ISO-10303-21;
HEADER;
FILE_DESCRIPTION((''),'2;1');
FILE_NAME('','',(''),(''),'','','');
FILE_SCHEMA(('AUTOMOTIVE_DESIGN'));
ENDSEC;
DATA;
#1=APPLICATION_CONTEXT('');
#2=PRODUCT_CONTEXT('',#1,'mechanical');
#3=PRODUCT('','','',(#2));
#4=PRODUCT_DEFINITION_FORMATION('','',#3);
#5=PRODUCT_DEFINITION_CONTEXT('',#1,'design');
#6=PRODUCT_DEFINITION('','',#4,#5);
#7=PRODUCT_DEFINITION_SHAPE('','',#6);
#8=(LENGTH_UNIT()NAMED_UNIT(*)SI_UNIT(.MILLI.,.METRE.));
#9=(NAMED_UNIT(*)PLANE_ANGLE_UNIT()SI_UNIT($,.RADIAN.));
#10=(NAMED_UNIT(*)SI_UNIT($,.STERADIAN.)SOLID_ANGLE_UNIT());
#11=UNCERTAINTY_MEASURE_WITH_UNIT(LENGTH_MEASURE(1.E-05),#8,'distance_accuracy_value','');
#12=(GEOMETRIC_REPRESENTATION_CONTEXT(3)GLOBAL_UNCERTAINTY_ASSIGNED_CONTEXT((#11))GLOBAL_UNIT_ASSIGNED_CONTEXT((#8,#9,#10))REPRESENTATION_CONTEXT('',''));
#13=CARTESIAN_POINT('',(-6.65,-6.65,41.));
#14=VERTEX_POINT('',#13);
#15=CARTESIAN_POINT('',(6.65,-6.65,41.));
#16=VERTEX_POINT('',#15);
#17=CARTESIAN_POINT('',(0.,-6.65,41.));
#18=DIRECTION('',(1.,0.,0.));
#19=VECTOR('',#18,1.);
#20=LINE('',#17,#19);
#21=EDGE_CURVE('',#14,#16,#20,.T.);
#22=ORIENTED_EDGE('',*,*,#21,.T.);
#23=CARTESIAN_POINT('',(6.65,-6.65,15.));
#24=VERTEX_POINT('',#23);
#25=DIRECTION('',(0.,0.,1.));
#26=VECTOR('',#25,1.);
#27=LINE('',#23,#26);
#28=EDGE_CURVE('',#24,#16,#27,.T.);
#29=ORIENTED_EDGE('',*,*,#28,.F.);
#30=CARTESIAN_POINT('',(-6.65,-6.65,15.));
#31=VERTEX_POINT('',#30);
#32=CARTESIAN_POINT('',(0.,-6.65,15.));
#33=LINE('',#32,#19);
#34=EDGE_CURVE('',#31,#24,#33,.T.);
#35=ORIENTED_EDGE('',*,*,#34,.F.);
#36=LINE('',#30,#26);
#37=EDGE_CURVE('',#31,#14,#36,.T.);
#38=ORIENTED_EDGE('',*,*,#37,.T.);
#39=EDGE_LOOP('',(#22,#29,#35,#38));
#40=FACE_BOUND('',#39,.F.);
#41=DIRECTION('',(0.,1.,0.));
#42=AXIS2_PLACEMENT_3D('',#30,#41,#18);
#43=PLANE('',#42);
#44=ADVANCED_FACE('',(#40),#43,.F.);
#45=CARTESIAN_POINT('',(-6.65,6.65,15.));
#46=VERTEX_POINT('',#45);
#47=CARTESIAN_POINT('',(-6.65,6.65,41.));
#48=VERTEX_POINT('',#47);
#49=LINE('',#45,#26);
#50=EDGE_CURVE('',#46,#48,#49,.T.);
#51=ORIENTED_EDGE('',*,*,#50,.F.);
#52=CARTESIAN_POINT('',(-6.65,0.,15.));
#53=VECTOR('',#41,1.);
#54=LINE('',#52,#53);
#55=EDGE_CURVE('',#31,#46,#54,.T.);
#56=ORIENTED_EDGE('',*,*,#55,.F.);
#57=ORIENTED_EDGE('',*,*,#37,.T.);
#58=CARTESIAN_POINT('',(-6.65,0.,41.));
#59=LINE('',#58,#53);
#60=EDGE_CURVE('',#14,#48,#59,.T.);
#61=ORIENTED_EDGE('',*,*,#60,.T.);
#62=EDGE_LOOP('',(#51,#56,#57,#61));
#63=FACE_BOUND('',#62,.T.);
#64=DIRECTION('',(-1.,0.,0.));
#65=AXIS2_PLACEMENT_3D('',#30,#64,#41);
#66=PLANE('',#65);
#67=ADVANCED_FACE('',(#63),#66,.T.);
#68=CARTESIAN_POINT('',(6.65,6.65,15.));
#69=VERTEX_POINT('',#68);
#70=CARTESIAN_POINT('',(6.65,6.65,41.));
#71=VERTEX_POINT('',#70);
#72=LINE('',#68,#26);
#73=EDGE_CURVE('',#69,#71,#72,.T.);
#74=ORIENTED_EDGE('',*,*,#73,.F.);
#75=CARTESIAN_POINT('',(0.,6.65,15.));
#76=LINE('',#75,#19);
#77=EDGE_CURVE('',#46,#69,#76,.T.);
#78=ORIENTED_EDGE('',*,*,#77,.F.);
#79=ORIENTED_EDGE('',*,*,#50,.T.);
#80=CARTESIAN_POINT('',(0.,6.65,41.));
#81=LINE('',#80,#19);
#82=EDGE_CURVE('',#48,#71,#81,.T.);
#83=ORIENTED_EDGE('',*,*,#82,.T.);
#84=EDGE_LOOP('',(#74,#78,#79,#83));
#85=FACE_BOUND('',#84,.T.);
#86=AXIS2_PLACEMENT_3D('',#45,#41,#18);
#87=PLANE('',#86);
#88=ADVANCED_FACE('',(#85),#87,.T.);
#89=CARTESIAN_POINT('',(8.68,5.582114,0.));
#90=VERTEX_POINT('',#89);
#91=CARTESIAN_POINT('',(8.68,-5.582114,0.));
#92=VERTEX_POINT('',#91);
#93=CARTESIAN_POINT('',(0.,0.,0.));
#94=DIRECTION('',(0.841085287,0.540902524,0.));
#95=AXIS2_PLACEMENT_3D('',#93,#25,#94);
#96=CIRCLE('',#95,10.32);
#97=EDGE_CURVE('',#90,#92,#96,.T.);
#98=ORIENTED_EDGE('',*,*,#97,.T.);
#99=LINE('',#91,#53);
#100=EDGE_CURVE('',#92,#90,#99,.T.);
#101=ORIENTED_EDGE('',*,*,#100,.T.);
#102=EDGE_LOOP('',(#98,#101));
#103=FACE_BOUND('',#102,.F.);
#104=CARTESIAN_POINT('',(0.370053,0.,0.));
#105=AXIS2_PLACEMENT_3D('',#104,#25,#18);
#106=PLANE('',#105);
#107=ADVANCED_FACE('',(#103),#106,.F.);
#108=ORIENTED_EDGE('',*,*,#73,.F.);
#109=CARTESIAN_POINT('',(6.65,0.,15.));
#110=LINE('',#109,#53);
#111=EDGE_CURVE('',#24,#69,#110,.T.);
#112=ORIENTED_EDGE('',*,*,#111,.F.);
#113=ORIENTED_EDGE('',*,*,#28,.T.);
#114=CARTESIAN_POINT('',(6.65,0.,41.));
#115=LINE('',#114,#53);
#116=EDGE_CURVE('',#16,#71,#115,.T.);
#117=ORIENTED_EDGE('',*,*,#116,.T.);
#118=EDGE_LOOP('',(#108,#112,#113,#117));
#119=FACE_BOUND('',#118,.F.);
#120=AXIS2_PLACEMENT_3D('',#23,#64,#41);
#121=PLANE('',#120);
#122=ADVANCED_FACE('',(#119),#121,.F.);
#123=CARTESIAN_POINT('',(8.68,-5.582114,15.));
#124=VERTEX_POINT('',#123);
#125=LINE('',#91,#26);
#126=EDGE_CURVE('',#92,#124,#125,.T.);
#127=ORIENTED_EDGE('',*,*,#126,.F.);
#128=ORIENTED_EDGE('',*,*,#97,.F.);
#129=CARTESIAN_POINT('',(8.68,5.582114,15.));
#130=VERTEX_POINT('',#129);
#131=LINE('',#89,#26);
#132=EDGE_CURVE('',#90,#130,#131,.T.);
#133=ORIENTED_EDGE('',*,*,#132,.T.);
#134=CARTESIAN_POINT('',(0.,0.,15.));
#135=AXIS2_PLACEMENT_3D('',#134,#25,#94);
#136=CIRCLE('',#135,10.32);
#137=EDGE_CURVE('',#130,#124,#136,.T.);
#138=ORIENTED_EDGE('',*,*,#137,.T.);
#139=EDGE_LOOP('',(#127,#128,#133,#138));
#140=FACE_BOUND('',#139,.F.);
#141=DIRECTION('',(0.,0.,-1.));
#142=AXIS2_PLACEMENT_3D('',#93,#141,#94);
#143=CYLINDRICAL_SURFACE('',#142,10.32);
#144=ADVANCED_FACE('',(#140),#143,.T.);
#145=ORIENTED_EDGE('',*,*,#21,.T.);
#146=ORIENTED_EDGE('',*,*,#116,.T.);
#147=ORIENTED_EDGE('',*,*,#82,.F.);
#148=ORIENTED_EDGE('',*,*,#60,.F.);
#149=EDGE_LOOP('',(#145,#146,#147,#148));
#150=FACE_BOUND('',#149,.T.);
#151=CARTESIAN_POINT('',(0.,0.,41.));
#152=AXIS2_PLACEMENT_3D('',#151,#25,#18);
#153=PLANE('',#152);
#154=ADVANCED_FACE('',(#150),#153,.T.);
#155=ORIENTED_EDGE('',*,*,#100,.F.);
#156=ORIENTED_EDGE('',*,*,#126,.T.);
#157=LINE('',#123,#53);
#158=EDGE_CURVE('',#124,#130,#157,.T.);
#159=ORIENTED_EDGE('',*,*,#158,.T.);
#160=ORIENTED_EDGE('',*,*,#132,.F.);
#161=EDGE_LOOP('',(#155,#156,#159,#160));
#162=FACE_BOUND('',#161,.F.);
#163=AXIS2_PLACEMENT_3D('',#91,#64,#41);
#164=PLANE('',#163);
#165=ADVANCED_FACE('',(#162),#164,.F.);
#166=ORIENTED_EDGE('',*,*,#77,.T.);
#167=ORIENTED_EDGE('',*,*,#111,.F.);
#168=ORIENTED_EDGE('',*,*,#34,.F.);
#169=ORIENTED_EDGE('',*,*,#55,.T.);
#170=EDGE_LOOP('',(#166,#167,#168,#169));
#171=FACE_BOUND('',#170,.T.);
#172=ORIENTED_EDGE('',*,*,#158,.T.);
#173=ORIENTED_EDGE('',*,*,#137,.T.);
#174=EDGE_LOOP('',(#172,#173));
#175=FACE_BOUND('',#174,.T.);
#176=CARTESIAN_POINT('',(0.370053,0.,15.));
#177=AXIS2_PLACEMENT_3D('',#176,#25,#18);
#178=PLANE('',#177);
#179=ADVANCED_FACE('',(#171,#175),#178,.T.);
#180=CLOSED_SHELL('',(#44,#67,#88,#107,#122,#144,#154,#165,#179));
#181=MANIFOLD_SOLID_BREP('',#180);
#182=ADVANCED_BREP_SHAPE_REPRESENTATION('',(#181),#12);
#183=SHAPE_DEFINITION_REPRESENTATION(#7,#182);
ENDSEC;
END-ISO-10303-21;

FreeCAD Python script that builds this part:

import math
import FreeCAD as App
import Part
import Sketcher
from FreeCAD import Vector
Q = App.Units.Quantity


def add_polygon(sketch, points):
    """Adds a closed chain of lines whose ends are joined by coincident constraints."""
    first, n = sketch.GeometryCount, len(points)
    for a, b in zip(points, points[1:] + points[:1]):
        sketch.addGeometry(Part.LineSegment(App.Vector(*a, 0), App.Vector(*b, 0)), False)
    for i in range(n):
        sketch.addConstraint(Sketcher.Constraint("Coincident", first + i, 2, first + (i + 1) % n, 1))

doc = App.newDocument("Part")
body = doc.addObject("PartDesign::Body", "Body")

sketch1 = body.newObject("Sketcher::SketchObject", "Sketch")
sketch1.AttachmentSupport = (doc.getObject("XY_Plane"), [""])
sketch1.MapMode = "FlatFace"
sketch1.addGeometry(Part.LineSegment(Vector(9, -6, 0), Vector(9, 6, 0)), False)
sketch1.addGeometry(Part.ArcOfCircle(Part.Circle(Vector(0, 0, 0), Vector(0, 0, 1), 10), math.radians(33), math.radians(327)), False)
sketch1.addConstraint(Sketcher.Constraint("Coincident", 0, 1, 1, 2))
sketch1.addConstraint(Sketcher.Constraint("Coincident", 1, 1, 0, 2))
sketch1.addConstraint(Sketcher.Constraint("Vertical", 0))
sketch1.addConstraint(Sketcher.Constraint("Coincident", 1, 3, -1, 1))
sketch1.addConstraint(Sketcher.Constraint("Radius", 1, Q("10.32 mm")))
sketch1.addConstraint(Sketcher.Constraint("DistanceX", -1, 1, 0, 1, Q("8.68 mm")))
pad1 = body.newObject("PartDesign::Pad", "Pad")
pad1.Profile = sketch1
pad1.Length = 15

sketch2 = body.newObject("Sketcher::SketchObject", "Sketch001")
sketch2.AttachmentSupport = (doc.getObject("XY_Plane"), [""])
sketch2.MapMode = "FlatFace"
sketch2.AttachmentOffset = App.Placement(Vector(0, 0, 15), App.Rotation())
add_polygon(sketch2, [(-7, 7), (-7, -7), (7, -7), (7, 7)])
sketch2.addConstraint(Sketcher.Constraint("Vertical", 0))
sketch2.addConstraint(Sketcher.Constraint("Horizontal", 1))
sketch2.addConstraint(Sketcher.Constraint("Vertical", 2))
sketch2.addConstraint(Sketcher.Constraint("Horizontal", 3))
sketch2.addConstraint(Sketcher.Constraint("Symmetric", 0, 2, 2, 2, -1, 1))
sketch2.addConstraint(Sketcher.Constraint("Equal", 3, 0))
sketch2.addConstraint(Sketcher.Constraint("DistanceX", 1, 1, 1, 2, Q("13.3 mm")))
pad2 = body.newObject("PartDesign::Pad", "Pad001")
pad2.Profile = sketch2
pad2.Length = 26

doc.recompute()
